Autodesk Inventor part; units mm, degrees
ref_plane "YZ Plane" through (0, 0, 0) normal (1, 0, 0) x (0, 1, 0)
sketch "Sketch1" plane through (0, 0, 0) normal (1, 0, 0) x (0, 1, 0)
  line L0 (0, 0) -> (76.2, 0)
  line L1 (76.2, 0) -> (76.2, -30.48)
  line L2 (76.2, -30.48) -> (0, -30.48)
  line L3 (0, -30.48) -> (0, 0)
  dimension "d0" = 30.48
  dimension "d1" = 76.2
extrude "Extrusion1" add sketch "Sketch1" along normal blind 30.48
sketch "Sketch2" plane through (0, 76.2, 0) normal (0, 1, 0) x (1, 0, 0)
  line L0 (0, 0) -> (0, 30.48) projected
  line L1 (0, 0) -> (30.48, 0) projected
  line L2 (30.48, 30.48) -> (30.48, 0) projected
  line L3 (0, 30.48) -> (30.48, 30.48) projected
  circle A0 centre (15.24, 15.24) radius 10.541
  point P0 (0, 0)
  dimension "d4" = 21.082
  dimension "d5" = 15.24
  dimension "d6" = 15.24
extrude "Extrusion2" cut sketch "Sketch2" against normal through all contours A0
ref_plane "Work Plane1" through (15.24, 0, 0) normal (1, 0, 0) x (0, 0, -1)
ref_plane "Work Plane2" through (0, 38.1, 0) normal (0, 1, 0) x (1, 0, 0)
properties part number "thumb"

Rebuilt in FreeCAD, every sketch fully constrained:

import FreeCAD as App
import Part
import Sketcher

V = App.Vector
Q = App.Units.Quantity

doc = App.newDocument("Part")
body = doc.addObject("PartDesign::Body", "Body")

sketch1 = body.newObject("Sketcher::SketchObject", "Sketch")
sketch1.AttachmentSupport = (doc.getObject("YZ_Plane"), [""])
sketch1.MapMode = "FlatFace"
sketch1.addGeometry([
    Part.LineSegment(V(76, 0, 0), V(0, 0, 0)),
    Part.LineSegment(V(0, 0, 0), V(0, -30, 0)),
    Part.LineSegment(V(0, -30, 0), V(76, -30, 0)),
    Part.LineSegment(V(76, -30, 0), V(76, 0, 0)),
], False)
sketch1.addConstraint([
    Sketcher.Constraint("Coincident", 0, 2, 1, 1),
    Sketcher.Constraint("Coincident", 1, 2, 2, 1),
    Sketcher.Constraint("Coincident", 2, 2, 3, 1),
    Sketcher.Constraint("Coincident", 3, 2, 0, 1),
    Sketcher.Constraint("Horizontal", 0),
    Sketcher.Constraint("Vertical", 1),
    Sketcher.Constraint("Horizontal", 2),
    Sketcher.Constraint("Vertical", 3),
    Sketcher.Constraint("Coincident", 0, 2, -1, 1),
    Sketcher.Constraint("DistanceX", 0, 2, 0, 1, Q("3 in")),
    Sketcher.Constraint("DistanceY", 1, 2, 1, 1, Q("1.2 in")),
])
pad1 = body.newObject("PartDesign::Pad", "Pad")
pad1.Profile = sketch1
pad1.Length = Q("1.2 in")

sketch2 = body.newObject("Sketcher::SketchObject", "Sketch001")
sketch2.AttachmentSupport = (doc.getObject("XZ_Plane"), [""])
sketch2.MapMode = "FlatFace"
sketch2.AttachmentOffset = App.Placement(V(0, 0, -3 * 25.4), App.Rotation())
sketch2.addGeometry(Part.Circle(V(15, -15, 0), V(0, 0, 1), 11), False)
sketch2.addConstraint([
    Sketcher.Constraint("Diameter", 0, Q("0.83 in")),
    Sketcher.Constraint("DistanceX", -1, 1, 0, 3, Q("0.6 in")),
    Sketcher.Constraint("DistanceY", 0, 3, -1, 1, Q("0.6 in")),
])
pocket1 = body.newObject("PartDesign::Pocket", "Pocket")
pocket1.Profile = sketch2
pocket1.Type = "ThroughAll"
pocket1.Reversed = True

doc.recompute()
